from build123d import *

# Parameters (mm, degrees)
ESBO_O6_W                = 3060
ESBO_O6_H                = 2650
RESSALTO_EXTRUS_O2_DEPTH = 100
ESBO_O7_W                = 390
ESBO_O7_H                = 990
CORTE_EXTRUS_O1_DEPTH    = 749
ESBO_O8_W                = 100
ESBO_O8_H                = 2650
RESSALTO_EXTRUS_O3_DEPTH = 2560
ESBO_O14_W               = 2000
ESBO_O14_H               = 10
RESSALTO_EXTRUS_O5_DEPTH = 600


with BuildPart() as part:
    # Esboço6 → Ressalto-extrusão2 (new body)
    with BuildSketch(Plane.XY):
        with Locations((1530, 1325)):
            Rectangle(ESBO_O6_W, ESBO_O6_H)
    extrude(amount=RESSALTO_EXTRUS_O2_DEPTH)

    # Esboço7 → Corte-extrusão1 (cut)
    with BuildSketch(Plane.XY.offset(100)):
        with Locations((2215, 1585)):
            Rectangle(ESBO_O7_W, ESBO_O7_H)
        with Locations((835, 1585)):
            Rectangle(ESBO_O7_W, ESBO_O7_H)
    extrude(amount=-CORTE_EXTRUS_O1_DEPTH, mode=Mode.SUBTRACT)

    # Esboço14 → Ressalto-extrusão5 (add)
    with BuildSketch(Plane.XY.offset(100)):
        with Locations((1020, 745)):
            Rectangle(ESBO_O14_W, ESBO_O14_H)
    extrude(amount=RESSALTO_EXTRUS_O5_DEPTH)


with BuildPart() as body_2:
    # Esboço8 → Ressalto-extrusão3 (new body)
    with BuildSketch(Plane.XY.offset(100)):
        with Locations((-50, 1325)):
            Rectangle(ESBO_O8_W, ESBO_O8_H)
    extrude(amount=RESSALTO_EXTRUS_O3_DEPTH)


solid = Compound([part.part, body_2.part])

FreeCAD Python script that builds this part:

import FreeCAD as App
import Part
import Sketcher

V = App.Vector


def add_polygon(sketch, points):
    """Adds a closed chain of lines whose ends are joined by coincident constraints."""
    first, n = sketch.GeometryCount, len(points)
    for a, b in zip(points, points[1:] + points[:1]):
        sketch.addGeometry(Part.LineSegment(App.Vector(*a, 0), App.Vector(*b, 0)), False)
    for i in range(n):
        sketch.addConstraint(Sketcher.Constraint("Coincident", first + i, 2, first + (i + 1) % n, 1))

doc = App.newDocument("Part")
params = doc.addObject("Spreadsheet::Sheet", "Params")
for row, (alias, value) in enumerate([
    ("sketch1_width", "3060 mm"),
    ("sketch1_height", "2650 mm"),
    ("pad1_length", "100 mm"),
    ("sketch2_width", "390 mm"),
    ("sketch2_height", "990 mm"),
    ("pocket1_length", "749 mm"),
    ("sketch3_width", "2000 mm"),
    ("sketch3_height", "10 mm"),
    ("pad2_length", "600 mm"),
    ("sketch4_width", "100 mm"),
    ("sketch4_height", "2650 mm"),
    ("pad3_length", "2560 mm"),
], start=1):
    params.set(f"A{row}", alias)
    params.set(f"B{row}", "=" + value)
    params.setAlias(f"B{row}", alias)

body = doc.addObject("PartDesign::Body", "Body")

# Sketch on XY plane
sketch1 = body.newObject("Sketcher::SketchObject", "Sketch")
sketch1.AttachmentSupport = (doc.getObject("XY_Plane"), [""])
sketch1.MapMode = "FlatFace"
add_polygon(sketch1, [(0, 2650), (0, 0), (3060, 0), (3060, 2650)])  # lines 0-3
sketch1.addConstraint([
    Sketcher.Constraint("Vertical", 0),
    Sketcher.Constraint("Horizontal", 1),
    Sketcher.Constraint("Vertical", 2),
    Sketcher.Constraint("Horizontal", 3),
    Sketcher.Constraint("Coincident", 0, 2, -1, 1),
    Sketcher.Constraint("DistanceX", 1, 1, 1, 2, 3060.0),
    Sketcher.Constraint("DistanceY", 0, 2, 0, 1, 2650.0),
])
sketch1.setExpression("Constraints[9]", "Params.sketch1_width")
sketch1.setExpression("Constraints[10]", "Params.sketch1_height")
pad1 = body.newObject("PartDesign::Pad", "Pad")
pad1.Profile = sketch1
pad1.setExpression("Length", "Params.pad1_length")

# Sketch on XY plane
sketch2 = body.newObject("Sketcher::SketchObject", "Sketch001")
sketch2.AttachmentSupport = (doc.getObject("XY_Plane"), [""])
sketch2.MapMode = "FlatFace"
sketch2.AttachmentOffset = App.Placement(V(0, 0, 100), App.Rotation())
add_polygon(sketch2, [(2020, 2080), (2020, 1090), (2410, 1090), (2410, 2080)])  # lines 0-3
add_polygon(sketch2, [(640, 2080), (640, 1090), (1030, 1090), (1030, 2080)])  # lines 4-7
sketch2.addConstraint([
    Sketcher.Constraint("Vertical", 0),
    Sketcher.Constraint("Horizontal", 1),
    Sketcher.Constraint("Vertical", 2),
    Sketcher.Constraint("Horizontal", 3),
    Sketcher.Constraint("Vertical", 4),
    Sketcher.Constraint("Horizontal", 5),
    Sketcher.Constraint("Vertical", 6),
    Sketcher.Constraint("Horizontal", 7),
    Sketcher.Constraint("Horizontal", 1, 2, 4, 2),
    Sketcher.Constraint("Horizontal", 3, 2, 6, 2),
    Sketcher.Constraint("Equal", 3, 5),
    Sketcher.Constraint("DistanceX", 1, 1, 1, 2, 390.0),
    Sketcher.Constraint("DistanceY", 0, 2, 0, 1, 990.0),
    Sketcher.Constraint("DistanceX", -1, 1, 0, 2, 2020.0),
    Sketcher.Constraint("DistanceY", -1, 1, 0, 2, 1090.0),
    Sketcher.Constraint("DistanceX", -1, 1, 4, 2, 640.0),
])
sketch2.setExpression("Constraints[19]", "Params.sketch2_width")
sketch2.setExpression("Constraints[20]", "Params.sketch2_height")
pocket1 = body.newObject("PartDesign::Pocket", "Pocket")
pocket1.Profile = sketch2
pocket1.setExpression("Length", "Params.pocket1_length")

# Sketch on XY plane
sketch3 = body.newObject("Sketcher::SketchObject", "Sketch002")
sketch3.AttachmentSupport = (doc.getObject("XY_Plane"), [""])
sketch3.MapMode = "FlatFace"
sketch3.AttachmentOffset = App.Placement(V(0, 0, 100), App.Rotation())
add_polygon(sketch3, [(20, 750), (20, 740), (2020, 740), (2020, 750)])  # lines 0-3
sketch3.addConstraint([
    Sketcher.Constraint("Vertical", 0),
    Sketcher.Constraint("Horizontal", 1),
    Sketcher.Constraint("Vertical", 2),
    Sketcher.Constraint("Horizontal", 3),
    Sketcher.Constraint("DistanceX", 1, 1, 1, 2, 2000.0),
    Sketcher.Constraint("DistanceY", 0, 2, 0, 1, 10.0),
    Sketcher.Constraint("DistanceX", -1, 1, 0, 2, 20.0),
    Sketcher.Constraint("DistanceY", -1, 1, 0, 2, 740.0),
])
sketch3.setExpression("Constraints[8]", "Params.sketch3_width")
sketch3.setExpression("Constraints[9]", "Params.sketch3_height")
pad2 = body.newObject("PartDesign::Pad", "Pad001")
pad2.Profile = sketch3
pad2.setExpression("Length", "Params.pad2_length")
body2 = doc.addObject("PartDesign::Body", "Body001")

# Sketch on XY plane
sketch4 = body2.newObject("Sketcher::SketchObject", "Sketch003")
sketch4.AttachmentSupport = (doc.getObject("XY_Plane001"), [""])
sketch4.MapMode = "FlatFace"
sketch4.AttachmentOffset = App.Placement(V(0, 0, 100), App.Rotation())
add_polygon(sketch4, [(-100, 2650), (-100, 0), (0, 0), (0, 2650)])  # lines 0-3
sketch4.addConstraint([
    Sketcher.Constraint("Vertical", 0),
    Sketcher.Constraint("Horizontal", 1),
    Sketcher.Constraint("Vertical", 2),
    Sketcher.Constraint("Horizontal", 3),
    Sketcher.Constraint("Coincident", 1, 2, -1, 1),
    Sketcher.Constraint("DistanceX", 1, 1, 1, 2, 100.0),
    Sketcher.Constraint("DistanceY", 0, 2, 0, 1, 2650.0),
])
sketch4.setExpression("Constraints[9]", "Params.sketch4_width")
sketch4.setExpression("Constraints[10]", "Params.sketch4_height")
pad3 = body2.newObject("PartDesign::Pad", "Pad002")
pad3.Profile = sketch4
pad3.setExpression("Length", "Params.pad3_length")

doc.recompute()
